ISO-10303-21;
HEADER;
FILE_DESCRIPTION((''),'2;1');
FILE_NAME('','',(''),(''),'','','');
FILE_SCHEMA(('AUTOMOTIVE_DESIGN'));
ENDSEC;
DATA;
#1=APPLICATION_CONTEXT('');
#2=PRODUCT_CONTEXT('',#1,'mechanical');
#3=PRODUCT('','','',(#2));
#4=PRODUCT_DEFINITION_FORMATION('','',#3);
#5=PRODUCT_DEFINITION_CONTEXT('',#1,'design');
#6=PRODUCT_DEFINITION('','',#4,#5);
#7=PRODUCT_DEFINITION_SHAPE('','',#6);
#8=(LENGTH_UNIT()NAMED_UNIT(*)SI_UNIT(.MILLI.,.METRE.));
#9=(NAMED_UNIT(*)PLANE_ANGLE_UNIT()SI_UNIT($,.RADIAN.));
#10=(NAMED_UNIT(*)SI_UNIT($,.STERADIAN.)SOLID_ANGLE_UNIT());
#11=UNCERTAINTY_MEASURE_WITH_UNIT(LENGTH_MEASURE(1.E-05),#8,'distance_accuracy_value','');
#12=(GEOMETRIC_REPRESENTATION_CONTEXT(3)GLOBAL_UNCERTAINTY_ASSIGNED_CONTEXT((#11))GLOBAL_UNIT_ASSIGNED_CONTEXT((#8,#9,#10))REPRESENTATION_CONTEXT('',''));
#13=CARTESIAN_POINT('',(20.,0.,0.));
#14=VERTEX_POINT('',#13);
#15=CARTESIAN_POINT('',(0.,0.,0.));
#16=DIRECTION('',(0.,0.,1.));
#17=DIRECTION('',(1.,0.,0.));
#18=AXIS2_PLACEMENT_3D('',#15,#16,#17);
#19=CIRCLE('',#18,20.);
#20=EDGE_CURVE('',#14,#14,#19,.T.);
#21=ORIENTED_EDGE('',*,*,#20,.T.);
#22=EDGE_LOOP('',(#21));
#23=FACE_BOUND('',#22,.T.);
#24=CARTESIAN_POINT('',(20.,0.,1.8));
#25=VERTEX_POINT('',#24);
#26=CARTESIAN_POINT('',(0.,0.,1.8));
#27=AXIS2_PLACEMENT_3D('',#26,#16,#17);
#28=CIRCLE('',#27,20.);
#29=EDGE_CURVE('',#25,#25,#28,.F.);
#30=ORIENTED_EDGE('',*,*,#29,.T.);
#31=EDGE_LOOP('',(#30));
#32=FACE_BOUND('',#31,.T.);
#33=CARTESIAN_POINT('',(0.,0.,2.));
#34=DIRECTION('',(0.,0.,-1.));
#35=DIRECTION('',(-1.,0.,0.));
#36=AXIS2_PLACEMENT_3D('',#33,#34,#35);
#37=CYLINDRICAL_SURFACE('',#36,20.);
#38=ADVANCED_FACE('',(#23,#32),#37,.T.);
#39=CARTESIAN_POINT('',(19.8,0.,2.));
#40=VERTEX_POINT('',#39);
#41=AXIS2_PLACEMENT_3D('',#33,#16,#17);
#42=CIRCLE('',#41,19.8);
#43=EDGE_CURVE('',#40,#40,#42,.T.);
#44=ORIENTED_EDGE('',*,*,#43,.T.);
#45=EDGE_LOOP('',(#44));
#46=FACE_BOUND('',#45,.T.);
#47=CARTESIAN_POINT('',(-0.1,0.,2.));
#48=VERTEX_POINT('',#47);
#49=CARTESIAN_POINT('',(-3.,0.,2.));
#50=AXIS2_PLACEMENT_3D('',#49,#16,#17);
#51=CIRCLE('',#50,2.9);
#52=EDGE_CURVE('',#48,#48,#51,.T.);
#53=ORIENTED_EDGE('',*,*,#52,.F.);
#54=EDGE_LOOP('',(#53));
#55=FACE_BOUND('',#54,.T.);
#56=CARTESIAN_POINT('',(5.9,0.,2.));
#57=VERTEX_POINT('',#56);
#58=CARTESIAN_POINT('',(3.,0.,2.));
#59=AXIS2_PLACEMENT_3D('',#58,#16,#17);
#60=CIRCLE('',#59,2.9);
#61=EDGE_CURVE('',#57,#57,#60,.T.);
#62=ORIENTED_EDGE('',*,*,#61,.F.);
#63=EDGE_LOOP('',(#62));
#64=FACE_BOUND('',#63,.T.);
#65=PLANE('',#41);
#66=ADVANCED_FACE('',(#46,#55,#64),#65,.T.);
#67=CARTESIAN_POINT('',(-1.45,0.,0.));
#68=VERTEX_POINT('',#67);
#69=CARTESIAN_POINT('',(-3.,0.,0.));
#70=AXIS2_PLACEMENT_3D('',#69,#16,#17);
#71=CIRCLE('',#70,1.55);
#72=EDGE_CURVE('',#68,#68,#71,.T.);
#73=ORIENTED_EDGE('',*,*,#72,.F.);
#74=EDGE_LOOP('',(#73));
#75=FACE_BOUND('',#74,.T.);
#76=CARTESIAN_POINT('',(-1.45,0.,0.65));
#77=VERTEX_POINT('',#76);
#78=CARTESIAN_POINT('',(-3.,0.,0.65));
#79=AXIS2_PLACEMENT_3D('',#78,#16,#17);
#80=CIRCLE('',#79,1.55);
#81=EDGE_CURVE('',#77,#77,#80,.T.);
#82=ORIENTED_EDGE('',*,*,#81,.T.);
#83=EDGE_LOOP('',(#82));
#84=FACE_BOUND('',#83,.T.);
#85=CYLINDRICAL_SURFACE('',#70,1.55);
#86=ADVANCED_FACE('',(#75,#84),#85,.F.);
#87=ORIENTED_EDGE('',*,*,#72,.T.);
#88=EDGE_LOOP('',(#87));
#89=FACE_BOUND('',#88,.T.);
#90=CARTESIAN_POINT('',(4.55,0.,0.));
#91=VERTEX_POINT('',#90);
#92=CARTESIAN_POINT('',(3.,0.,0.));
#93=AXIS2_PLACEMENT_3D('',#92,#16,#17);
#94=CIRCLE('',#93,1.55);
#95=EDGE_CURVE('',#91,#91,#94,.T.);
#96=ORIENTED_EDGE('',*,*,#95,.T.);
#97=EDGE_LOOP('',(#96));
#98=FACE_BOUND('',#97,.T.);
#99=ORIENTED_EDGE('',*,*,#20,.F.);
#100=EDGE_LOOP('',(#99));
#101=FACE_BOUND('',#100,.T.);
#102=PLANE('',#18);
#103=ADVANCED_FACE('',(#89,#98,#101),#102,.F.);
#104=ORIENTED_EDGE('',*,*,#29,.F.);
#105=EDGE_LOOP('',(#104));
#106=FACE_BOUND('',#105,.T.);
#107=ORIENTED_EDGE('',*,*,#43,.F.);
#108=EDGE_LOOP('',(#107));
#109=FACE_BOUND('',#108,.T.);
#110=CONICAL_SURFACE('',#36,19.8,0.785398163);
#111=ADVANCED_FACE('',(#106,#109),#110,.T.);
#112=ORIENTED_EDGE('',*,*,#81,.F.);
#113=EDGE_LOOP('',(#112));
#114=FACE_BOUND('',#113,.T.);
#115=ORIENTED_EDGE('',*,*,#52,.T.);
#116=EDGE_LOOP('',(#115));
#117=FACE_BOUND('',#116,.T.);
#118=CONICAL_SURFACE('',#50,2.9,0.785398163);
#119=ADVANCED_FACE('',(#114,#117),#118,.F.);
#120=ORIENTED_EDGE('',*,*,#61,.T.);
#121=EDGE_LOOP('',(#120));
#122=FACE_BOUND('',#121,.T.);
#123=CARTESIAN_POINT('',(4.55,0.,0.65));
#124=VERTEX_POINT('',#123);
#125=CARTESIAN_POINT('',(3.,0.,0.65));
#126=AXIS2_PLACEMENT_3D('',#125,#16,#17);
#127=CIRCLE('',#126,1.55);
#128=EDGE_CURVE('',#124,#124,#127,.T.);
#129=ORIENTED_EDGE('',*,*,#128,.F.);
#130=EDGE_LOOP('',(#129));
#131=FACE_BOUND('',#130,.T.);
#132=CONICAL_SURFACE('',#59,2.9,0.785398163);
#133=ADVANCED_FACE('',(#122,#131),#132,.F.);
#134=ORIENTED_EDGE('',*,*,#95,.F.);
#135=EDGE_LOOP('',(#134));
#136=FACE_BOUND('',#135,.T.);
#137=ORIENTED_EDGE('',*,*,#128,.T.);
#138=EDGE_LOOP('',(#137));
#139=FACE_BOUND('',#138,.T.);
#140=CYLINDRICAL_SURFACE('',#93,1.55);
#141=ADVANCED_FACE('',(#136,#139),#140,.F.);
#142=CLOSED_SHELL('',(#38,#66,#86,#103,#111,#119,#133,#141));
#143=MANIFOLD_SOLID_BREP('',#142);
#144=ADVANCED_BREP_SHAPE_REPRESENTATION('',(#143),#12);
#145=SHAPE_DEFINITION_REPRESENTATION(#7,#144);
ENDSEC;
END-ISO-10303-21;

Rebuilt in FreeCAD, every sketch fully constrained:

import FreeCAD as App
import Part
import Sketcher

V = App.Vector


def edges_at(feature, points):
    """Names of the edges that pass closest to the given points."""
    edges = feature.Shape.Edges
    near = lambda p: min(range(len(edges)), key=lambda i: edges[i].distToShape(Part.Vertex(*p))[0])
    return sorted({f"Edge{near(p) + 1}" for p in points})

doc = App.newDocument("Part")
body = doc.addObject("PartDesign::Body", "Body")

# Sketch on XY plane
sketch1 = body.newObject("Sketcher::SketchObject", "Sketch")
sketch1.AttachmentSupport = (doc.getObject("XY_Plane"), [""])
sketch1.MapMode = "FlatFace"
sketch1.addGeometry(Part.Circle(V(0, 0, 0), V(0, 0, 1), 20), False)
sketch1.addConstraint([
    Sketcher.Constraint("Coincident", 0, 3, -1, 1),
    Sketcher.Constraint("Diameter", 0, 40.0),
])
pad1 = body.newObject("PartDesign::Pad", "Pad")
pad1.Profile = sketch1
pad1.Length = 2

# Sketch on XY plane
sketch2 = body.newObject("Sketcher::SketchObject", "Sketch001")
sketch2.AttachmentSupport = (doc.getObject("XY_Plane"), [""])
sketch2.MapMode = "FlatFace"
sketch2.AttachmentOffset = App.Placement(V(0, 0, 2), App.Rotation())
sketch2.addGeometry([
    Part.Circle(V(-3, 0, 0), V(0, 0, 1), 1.6),
    Part.Circle(V(3, 0, 0), V(0, 0, 1), 1.6),
], False)
sketch2.addConstraint([
    Sketcher.Constraint("Equal", 0, 1),
    Sketcher.Constraint("Symmetric", 0, 3, 1, 3, -1, 1),
    Sketcher.Constraint("PointOnObject", 0, 3, -1),
    Sketcher.Constraint("Diameter", 0, 3.1),
    Sketcher.Constraint("DistanceX", 0, 3, -1, 1, 3.0),
])
pocket1 = body.newObject("PartDesign::Pocket", "Pocket")
pocket1.Profile = sketch2
pocket1.Length = 2

# Sketch on XY plane
sketch3 = body.newObject("Sketcher::SketchObject", "Sketch002")
sketch3.AttachmentSupport = (doc.getObject("XY_Plane"), [""])
sketch3.MapMode = "FlatFace"
sketch3.AttachmentOffset = App.Placement(V(0, 0, 2), App.Rotation())
sketch3.addGeometry([
    Part.Circle(V(-3, 0, 0), V(0, 0, 1), 1.6),
    Part.Circle(V(3, 0, 0), V(0, 0, 1), 1.6),
], False)
sketch3.addConstraint([
    Sketcher.Constraint("Equal", 0, 1),
    Sketcher.Constraint("Symmetric", 0, 3, 1, 3, -1, 1),
    Sketcher.Constraint("PointOnObject", 0, 3, -1),
    Sketcher.Constraint("Diameter", 0, 3.1),
    Sketcher.Constraint("DistanceX", 0, 3, -1, 1, 3.0),
])
doc.recompute()
hole = body.newObject("PartDesign::Hole", "Hole")
hole.Profile = sketch3
hole.ThreadType = "None"
hole.Diameter = 3.1
hole.DepthType = "Dimension"
hole.Depth = 10
hole.DrillPoint = "Flat"
hole.HoleCutType = "Countersink"
hole.HoleCutDiameter = 5.8
hole.HoleCutCountersinkAngle = 90
doc.recompute()

chamfer = body.newObject("PartDesign::Chamfer", "Chamfer")
chamfer.Base = (hole, edges_at(hole, [(-20, 0, 2)]))
chamfer.Size = 0.2

doc.recompute()
